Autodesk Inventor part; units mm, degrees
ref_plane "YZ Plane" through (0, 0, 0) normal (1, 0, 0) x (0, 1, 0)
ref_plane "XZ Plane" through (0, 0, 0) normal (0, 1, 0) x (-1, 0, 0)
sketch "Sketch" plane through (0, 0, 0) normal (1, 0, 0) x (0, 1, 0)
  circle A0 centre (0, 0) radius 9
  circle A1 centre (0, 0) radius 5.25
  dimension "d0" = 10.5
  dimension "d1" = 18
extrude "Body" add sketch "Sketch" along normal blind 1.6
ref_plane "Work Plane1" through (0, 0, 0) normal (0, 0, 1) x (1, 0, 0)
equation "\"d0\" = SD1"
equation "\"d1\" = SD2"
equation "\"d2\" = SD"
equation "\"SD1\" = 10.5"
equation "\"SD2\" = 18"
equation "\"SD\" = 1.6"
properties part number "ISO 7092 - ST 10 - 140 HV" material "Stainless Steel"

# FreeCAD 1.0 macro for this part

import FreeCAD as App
import Part
import Sketcher
Q = App.Units.Quantity

doc = App.newDocument("Part")
params = doc.addObject("Spreadsheet::Sheet", "Params")
for row, (alias, value) in enumerate([
    ("sketch1_diameter", "18 mm"),
    ("sketch1_diameter2", "10.5 mm"),
    ("pad1_length", "1.6 mm"),
], start=1):
    params.set(f"A{row}", alias)
    params.set(f"B{row}", "=" + value)
    params.setAlias(f"B{row}", alias)

body = doc.addObject("PartDesign::Body", "Body")

# Sketch on YZ plane
sketch1 = body.newObject("Sketcher::SketchObject", "Sketch")
sketch1.AttachmentSupport = (doc.getObject("YZ_Plane"), [""])
sketch1.MapMode = "FlatFace"
sketch1.addGeometry(Part.Circle(App.Vector(0, 0, 0), App.Vector(0, 0, 1), 9), False)
sketch1.addGeometry(Part.Circle(App.Vector(0, 0, 0), App.Vector(0, 0, 1), 5), False)
sketch1.addConstraint(Sketcher.Constraint("Coincident", 0, 3, -1, 1))
sketch1.addConstraint(Sketcher.Constraint("Coincident", 1, 3, -1, 1))
sketch1.addConstraint(Sketcher.Constraint("Diameter", 0, Q("18 mm")))
sketch1.addConstraint(Sketcher.Constraint("Diameter", 1, Q("10.5 mm")))
sketch1.setExpression("Constraints[2]", "Params.sketch1_diameter")
sketch1.setExpression("Constraints[3]", "Params.sketch1_diameter2")
pad1 = body.newObject("PartDesign::Pad", "Pad")
pad1.Profile = sketch1
pad1.setExpression("Length", "Params.pad1_length")

doc.recompute()
